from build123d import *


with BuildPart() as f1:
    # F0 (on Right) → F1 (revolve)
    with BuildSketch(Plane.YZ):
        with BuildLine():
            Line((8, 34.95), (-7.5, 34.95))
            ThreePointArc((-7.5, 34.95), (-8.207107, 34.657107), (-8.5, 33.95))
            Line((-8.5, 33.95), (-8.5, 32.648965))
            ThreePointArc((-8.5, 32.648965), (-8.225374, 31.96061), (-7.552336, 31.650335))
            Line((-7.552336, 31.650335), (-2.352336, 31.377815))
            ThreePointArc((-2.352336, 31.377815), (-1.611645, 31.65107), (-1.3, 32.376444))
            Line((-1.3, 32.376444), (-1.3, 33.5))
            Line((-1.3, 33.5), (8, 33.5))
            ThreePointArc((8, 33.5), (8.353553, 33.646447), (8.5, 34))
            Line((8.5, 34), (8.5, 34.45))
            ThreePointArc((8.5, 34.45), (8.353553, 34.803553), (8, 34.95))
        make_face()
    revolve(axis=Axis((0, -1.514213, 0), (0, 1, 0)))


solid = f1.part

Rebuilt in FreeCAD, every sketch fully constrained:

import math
import FreeCAD as App
import Part
import Sketcher
Q = App.Units.Quantity

doc = App.newDocument("Part")
body = doc.addObject("PartDesign::Body", "Body")

sketch1 = body.newObject("Sketcher::SketchObject", "Sketch")
sketch1.AttachmentSupport = (doc.getObject("YZ_Plane"), [""])
sketch1.MapMode = "FlatFace"
sketch1.addGeometry([
    Part.LineSegment(App.Vector(8, 34.95, 0), App.Vector(-7.5, 34.95, 0)),
    Part.ArcOfCircle(Part.Circle(App.Vector(-7.5, 33.95, 0), App.Vector(0, 0, 1), 1), math.radians(90), math.radians(180)),
    Part.LineSegment(App.Vector(-8.5, 33.95, 0), App.Vector(-8.5, 32.65, 0)),
    Part.ArcOfCircle(Part.Circle(App.Vector(-7.5, 32.65, 0), App.Vector(0, 0, 1), 1), math.radians(-180), math.radians(-93)),
    Part.LineSegment(App.Vector(-7.55, 31.65, 0), App.Vector(-2.35, 31.38, 0)),
    Part.ArcOfCircle(Part.Circle(App.Vector(-2.3, 32.38, 0), App.Vector(0, 0, 1), 1), math.radians(-93), math.radians(0)),
    Part.LineSegment(App.Vector(-1.3, 32.38, 0), App.Vector(-1.3, 33.5, 0)),
    Part.LineSegment(App.Vector(-1.3, 33.5, 0), App.Vector(8, 33.5, 0)),
    Part.ArcOfCircle(Part.Circle(App.Vector(8, 34, 0), App.Vector(0, 0, 1), 0.5), math.radians(-90), math.radians(0)),
    Part.LineSegment(App.Vector(8.5, 34, 0), App.Vector(8.5, 34.45, 0)),
    Part.ArcOfCircle(Part.Circle(App.Vector(8, 34.45, 0), App.Vector(0, 0, 1), 0.5), math.radians(0), math.radians(90)),
], False)
sketch1.addConstraint([
    Sketcher.Constraint("Tangent", 0, 2, 1, 1),
    Sketcher.Constraint("Tangent", 1, 2, 2, 1),
    Sketcher.Constraint("Tangent", 2, 2, 3, 1),
    Sketcher.Constraint("Tangent", 3, 2, 4, 1),
    Sketcher.Constraint("Tangent", 4, 2, 5, 1),
    Sketcher.Constraint("Tangent", 5, 2, 6, 1),
    Sketcher.Constraint("Coincident", 6, 2, 7, 1),
    Sketcher.Constraint("Coincident", 7, 2, 8, 1),
    Sketcher.Constraint("Coincident", 8, 2, 9, 1),
    Sketcher.Constraint("Coincident", 9, 2, 10, 1),
    Sketcher.Constraint("Coincident", 10, 2, 0, 1),
    Sketcher.Constraint("Horizontal", 0),
    Sketcher.Constraint("Vertical", 2),
    Sketcher.Constraint("Vertical", 6),
    Sketcher.Constraint("Horizontal", 7),
    Sketcher.Constraint("Vertical", 9),
    Sketcher.Constraint("Equal", 1, 3),
    Sketcher.Constraint("Equal", 3, 5),
    Sketcher.Constraint("Equal", 8, 10),
    Sketcher.Constraint("Horizontal", 10, 3, 9, 2),
    Sketcher.Constraint("Vertical", 10, 3, 7, 2),
    Sketcher.Constraint("Vertical", 7, 2, 10, 2),
    Sketcher.Constraint("Radius", 1, 0.999999),
    Sketcher.Constraint("Radius", 8, 0.500001),
    Sketcher.Constraint("Angle", 4, Q("-2.999995 deg")),
    Sketcher.Constraint("DistanceX", 0, 2, 0, 1, 15.5),
    Sketcher.Constraint("DistanceX", 7, 1, 7, 2, 9.3),
    Sketcher.Constraint("DistanceX", -1, 1, 8, 3, 7.999999),
    Sketcher.Constraint("DistanceY", -1, 1, 8, 3, 34.000001),
    Sketcher.Constraint("DistanceY", -1, 1, 8, 2, 34.0),
    Sketcher.Constraint("DistanceY", 9, 1, 9, 2, 0.45),
    Sketcher.Constraint("DistanceY", 2, 2, 2, 1, 1.301035),
])
revolution = body.newObject("PartDesign::Revolution", "Revolution")
revolution.Profile = sketch1
revolution.ReferenceAxis = (sketch1, ["H_Axis"])
revolution.Angle = 360

doc.recompute()
